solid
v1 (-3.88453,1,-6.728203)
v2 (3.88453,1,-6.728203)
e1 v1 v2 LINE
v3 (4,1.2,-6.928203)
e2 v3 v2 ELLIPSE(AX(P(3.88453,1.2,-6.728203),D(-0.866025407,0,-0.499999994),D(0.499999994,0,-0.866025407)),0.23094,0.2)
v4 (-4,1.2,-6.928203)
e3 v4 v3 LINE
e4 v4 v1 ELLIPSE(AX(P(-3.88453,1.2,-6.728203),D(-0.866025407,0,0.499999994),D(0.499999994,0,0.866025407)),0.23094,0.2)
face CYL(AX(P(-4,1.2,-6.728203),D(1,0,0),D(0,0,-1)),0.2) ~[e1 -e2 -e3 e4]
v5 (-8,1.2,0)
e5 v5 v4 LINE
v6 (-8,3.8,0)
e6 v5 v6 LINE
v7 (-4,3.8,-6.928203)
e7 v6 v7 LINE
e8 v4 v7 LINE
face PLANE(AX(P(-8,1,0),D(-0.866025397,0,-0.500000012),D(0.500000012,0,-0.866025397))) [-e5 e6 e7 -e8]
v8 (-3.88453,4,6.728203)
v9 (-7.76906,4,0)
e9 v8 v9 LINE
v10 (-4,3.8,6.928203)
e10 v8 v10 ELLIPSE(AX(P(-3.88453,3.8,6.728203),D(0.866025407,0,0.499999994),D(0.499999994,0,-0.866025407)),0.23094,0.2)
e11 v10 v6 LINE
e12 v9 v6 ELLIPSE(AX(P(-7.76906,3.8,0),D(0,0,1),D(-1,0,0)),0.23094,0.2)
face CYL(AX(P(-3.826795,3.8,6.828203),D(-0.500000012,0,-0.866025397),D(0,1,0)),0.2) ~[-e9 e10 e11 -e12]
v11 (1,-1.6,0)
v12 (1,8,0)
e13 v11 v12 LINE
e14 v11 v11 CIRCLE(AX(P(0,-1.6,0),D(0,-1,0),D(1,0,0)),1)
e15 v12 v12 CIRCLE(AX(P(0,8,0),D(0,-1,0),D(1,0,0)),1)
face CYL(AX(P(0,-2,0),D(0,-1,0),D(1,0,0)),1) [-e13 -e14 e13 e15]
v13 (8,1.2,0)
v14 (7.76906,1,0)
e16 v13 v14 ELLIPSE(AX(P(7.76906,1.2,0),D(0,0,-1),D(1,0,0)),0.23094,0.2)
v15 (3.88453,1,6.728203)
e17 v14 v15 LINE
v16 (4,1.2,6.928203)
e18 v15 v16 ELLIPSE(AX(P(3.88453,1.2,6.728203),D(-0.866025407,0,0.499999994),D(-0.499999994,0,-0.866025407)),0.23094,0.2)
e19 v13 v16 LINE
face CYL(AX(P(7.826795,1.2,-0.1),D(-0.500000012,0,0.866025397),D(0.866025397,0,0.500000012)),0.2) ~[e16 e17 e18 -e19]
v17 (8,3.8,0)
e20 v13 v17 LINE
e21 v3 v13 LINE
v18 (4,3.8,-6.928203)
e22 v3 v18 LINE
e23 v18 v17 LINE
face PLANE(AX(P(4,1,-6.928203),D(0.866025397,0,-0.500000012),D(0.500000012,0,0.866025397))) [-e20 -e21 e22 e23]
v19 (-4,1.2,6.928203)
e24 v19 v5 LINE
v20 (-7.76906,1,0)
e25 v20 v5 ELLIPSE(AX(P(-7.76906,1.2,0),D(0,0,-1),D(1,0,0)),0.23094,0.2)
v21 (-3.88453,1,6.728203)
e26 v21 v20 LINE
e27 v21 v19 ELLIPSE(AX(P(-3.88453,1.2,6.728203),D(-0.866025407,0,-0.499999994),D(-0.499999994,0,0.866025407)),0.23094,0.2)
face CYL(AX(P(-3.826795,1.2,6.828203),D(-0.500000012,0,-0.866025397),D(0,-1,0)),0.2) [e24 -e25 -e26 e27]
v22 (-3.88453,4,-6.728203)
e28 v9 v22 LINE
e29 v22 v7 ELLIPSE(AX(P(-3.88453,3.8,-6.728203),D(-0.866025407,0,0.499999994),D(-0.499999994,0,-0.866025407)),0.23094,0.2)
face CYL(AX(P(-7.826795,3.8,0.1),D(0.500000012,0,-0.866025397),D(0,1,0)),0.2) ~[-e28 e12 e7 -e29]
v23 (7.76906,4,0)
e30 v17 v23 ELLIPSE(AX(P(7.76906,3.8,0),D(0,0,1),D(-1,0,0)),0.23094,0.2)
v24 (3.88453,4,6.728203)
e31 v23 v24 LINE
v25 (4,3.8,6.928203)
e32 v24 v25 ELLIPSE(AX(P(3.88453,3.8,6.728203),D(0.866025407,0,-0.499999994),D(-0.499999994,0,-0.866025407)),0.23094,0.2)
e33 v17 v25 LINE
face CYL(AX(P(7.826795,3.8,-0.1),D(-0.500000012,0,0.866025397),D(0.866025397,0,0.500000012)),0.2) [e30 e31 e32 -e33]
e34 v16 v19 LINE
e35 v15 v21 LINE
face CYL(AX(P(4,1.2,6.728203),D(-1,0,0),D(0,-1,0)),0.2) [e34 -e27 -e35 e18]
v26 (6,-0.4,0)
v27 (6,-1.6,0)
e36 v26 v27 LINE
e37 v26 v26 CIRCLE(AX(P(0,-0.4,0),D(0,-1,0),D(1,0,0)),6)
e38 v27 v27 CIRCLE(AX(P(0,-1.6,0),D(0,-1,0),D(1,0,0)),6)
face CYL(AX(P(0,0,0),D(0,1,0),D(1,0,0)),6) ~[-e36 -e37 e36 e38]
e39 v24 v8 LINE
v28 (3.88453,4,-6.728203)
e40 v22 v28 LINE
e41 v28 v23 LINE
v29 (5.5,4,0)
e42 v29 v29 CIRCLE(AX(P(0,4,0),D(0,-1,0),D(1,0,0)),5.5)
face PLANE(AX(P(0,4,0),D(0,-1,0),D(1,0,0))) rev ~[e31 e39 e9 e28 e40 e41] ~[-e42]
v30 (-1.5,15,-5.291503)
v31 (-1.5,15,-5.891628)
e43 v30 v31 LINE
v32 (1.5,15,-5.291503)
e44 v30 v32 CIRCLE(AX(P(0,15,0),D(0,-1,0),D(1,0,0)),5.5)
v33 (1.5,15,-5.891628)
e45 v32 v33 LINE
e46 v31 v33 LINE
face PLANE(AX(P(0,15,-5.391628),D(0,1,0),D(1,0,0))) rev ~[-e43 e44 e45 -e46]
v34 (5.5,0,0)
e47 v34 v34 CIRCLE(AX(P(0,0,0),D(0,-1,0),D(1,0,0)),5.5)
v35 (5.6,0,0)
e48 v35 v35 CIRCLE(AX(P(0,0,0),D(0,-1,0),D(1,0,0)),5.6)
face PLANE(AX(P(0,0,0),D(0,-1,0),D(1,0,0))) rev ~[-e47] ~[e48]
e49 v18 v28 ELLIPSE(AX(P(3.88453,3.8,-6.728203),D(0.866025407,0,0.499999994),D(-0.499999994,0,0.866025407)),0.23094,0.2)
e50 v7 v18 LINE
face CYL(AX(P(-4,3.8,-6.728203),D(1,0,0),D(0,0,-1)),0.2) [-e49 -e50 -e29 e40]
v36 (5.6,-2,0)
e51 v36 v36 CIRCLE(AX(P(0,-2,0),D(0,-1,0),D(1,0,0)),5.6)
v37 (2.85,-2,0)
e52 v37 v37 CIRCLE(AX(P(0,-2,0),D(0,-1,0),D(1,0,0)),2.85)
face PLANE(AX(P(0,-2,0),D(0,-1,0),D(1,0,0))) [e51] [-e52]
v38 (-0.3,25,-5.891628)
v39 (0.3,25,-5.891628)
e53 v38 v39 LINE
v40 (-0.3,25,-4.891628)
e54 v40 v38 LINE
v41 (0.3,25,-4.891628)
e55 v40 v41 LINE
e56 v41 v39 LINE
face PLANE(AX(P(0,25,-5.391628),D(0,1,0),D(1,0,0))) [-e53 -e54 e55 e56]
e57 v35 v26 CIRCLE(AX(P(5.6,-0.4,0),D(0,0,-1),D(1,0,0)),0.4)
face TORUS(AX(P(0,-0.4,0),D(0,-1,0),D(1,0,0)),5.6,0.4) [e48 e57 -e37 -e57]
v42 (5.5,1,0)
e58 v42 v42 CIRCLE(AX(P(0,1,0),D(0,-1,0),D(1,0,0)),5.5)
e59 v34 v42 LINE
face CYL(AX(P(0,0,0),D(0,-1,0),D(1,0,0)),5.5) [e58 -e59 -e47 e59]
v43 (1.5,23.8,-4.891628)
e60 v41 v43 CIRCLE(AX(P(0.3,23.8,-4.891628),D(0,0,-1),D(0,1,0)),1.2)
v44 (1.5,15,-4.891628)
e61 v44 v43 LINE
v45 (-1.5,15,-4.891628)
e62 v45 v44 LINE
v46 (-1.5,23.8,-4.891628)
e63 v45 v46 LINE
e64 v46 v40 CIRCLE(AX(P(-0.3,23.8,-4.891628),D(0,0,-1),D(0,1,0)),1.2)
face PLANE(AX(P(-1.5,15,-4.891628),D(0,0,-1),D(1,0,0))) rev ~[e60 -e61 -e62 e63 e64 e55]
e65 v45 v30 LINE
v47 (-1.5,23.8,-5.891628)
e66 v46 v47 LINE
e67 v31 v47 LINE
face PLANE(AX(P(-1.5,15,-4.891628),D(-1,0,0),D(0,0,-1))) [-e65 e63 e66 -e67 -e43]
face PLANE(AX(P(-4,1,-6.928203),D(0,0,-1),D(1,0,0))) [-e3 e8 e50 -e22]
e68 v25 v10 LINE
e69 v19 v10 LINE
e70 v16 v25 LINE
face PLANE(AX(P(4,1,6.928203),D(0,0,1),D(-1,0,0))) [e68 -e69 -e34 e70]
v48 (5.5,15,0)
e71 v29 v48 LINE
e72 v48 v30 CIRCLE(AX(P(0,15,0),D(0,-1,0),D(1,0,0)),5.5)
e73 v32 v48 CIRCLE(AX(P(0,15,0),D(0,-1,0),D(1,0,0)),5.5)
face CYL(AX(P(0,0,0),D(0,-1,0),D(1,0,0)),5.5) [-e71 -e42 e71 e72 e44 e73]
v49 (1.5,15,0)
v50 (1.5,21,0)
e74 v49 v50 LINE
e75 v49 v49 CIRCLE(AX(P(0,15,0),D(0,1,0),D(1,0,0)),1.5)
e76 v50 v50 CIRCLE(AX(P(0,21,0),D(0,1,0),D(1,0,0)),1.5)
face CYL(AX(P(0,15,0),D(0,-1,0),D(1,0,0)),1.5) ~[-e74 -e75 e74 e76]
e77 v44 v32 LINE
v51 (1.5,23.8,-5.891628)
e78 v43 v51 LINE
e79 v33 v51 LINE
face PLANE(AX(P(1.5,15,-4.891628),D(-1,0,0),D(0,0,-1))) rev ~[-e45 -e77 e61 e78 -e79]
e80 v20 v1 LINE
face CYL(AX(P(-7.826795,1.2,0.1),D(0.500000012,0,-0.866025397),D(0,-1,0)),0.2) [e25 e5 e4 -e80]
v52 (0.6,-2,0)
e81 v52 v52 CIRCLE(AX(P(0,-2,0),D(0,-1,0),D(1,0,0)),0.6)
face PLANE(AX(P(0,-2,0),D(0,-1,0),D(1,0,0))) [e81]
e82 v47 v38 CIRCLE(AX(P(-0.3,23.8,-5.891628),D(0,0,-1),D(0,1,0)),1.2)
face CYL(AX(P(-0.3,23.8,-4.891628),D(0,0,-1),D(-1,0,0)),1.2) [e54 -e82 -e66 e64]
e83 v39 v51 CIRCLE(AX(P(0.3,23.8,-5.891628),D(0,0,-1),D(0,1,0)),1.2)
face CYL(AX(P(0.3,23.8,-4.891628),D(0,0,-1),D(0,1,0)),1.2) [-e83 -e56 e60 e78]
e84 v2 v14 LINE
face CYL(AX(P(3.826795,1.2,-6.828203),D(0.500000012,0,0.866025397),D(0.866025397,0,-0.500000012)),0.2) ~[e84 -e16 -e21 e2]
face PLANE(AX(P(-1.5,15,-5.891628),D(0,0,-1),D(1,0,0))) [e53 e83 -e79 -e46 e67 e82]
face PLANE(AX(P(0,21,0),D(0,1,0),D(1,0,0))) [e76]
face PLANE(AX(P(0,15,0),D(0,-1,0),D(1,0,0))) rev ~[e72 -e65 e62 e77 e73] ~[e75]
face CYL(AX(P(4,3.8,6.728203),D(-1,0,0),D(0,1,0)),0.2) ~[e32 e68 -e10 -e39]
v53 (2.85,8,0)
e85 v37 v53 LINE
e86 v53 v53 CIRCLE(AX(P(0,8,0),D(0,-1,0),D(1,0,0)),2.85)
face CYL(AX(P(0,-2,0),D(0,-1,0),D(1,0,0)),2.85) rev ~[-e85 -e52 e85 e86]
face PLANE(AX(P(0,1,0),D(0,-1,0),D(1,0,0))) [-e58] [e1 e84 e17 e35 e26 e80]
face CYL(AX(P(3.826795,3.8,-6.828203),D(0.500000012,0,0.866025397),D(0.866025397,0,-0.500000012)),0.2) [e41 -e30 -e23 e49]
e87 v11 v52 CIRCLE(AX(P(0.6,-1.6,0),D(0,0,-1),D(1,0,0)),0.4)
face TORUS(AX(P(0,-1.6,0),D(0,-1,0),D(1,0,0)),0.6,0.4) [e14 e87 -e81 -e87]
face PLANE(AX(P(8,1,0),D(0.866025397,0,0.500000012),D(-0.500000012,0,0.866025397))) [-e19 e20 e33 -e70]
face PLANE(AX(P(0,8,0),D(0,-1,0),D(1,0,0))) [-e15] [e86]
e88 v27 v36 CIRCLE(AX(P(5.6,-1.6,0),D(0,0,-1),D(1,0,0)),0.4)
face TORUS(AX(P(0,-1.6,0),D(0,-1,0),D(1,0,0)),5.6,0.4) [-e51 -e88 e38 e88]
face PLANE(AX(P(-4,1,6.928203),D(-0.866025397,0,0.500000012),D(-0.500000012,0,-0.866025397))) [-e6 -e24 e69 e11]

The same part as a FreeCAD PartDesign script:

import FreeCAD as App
import Part
import Sketcher

V = App.Vector
Q = App.Units.Quantity


def edges_at(feature, points):
    """Names of the edges that pass closest to the given points."""
    edges = feature.Shape.Edges
    near = lambda p: min(range(len(edges)), key=lambda i: edges[i].distToShape(Part.Vertex(*p))[0])
    return sorted({f"Edge{near(p) + 1}" for p in points})


def add_polygon(sketch, points):
    """Adds a closed chain of lines whose ends are joined by coincident constraints."""
    first, n = sketch.GeometryCount, len(points)
    for a, b in zip(points, points[1:] + points[:1]):
        sketch.addGeometry(Part.LineSegment(App.Vector(*a, 0), App.Vector(*b, 0)), False)
    for i in range(n):
        sketch.addConstraint(Sketcher.Constraint("Coincident", first + i, 2, first + (i + 1) % n, 1))

doc = App.newDocument("Part")
body = doc.addObject("PartDesign::Body", "Body")

# Sketch on XZ plane
sketch1 = body.newObject("Sketcher::SketchObject", "Sketch")
sketch1.AttachmentSupport = (doc.getObject("XZ_Plane"), [""])
sketch1.MapMode = "FlatFace"
sketch1.addGeometry(Part.Circle(V(0, 0, 0), V(0, 0, 1), 5.5), False)
sketch1.addConstraint(Sketcher.Constraint("Coincident", 0, 3, -1, 1))
sketch1.addConstraint(Sketcher.Constraint("Diameter", 0, 11.0))
pad1 = body.newObject("PartDesign::Pad", "Pad")
pad1.Profile = sketch1
pad1.Length = 15
pad1.Reversed = True

# Sketch on XZ plane
sketch2 = body.newObject("Sketcher::SketchObject", "Sketch001")
sketch2.AttachmentSupport = (doc.getObject("XZ_Plane"), [""])
sketch2.MapMode = "FlatFace"
sketch2.addGeometry(Part.Circle(V(0, 0, 0), V(0, 0, 1), 6), False)
sketch2.addConstraint(Sketcher.Constraint("Coincident", 0, 3, -1, 1))
sketch2.addConstraint(Sketcher.Constraint("Diameter", 0, 12.0))
pad2 = body.newObject("PartDesign::Pad", "Pad001")
pad2.Profile = sketch2
pad2.Length = 2

# Sketch on XZ plane
sketch3 = body.newObject("Sketcher::SketchObject", "Sketch002")
sketch3.AttachmentSupport = (doc.getObject("XZ_Plane"), [""])
sketch3.MapMode = "FlatFace"
sketch3.AttachmentOffset = App.Placement(V(0, 0, -15), App.Rotation())
sketch3.addGeometry(Part.Circle(V(0, 0, 0), V(0, 0, 1), 1.5), False)
sketch3.addConstraint(Sketcher.Constraint("Coincident", 0, 3, -1, 1))
sketch3.addConstraint(Sketcher.Constraint("Diameter", 0, 3.0))
pad3 = body.newObject("PartDesign::Pad", "Pad002")
pad3.Profile = sketch3
pad3.Length = 6
pad3.Reversed = True

# Sketch on XZ plane
sketch4 = body.newObject("Sketcher::SketchObject", "Sketch003")
sketch4.AttachmentSupport = (doc.getObject("XZ_Plane"), [""])
sketch4.MapMode = "FlatFace"
sketch4.AttachmentOffset = App.Placement(V(0, 0, -15), App.Rotation())
add_polygon(sketch4, [(-1.5, -5.891628), (-1.5, -4.891628), (1.5, -4.891628), (1.5, -5.891628)])  # lines 0-3
sketch4.addConstraint(Sketcher.Constraint("Vertical", 0))
sketch4.addConstraint(Sketcher.Constraint("Horizontal", 1))
sketch4.addConstraint(Sketcher.Constraint("Vertical", 2))
sketch4.addConstraint(Sketcher.Constraint("Horizontal", 3))
sketch4.addConstraint(Sketcher.Constraint("DistanceX", 1, 1, 1, 2, 3.0))
sketch4.addConstraint(Sketcher.Constraint("DistanceY", 0, 1, 0, 2, 1.0))
sketch4.addConstraint(Sketcher.Constraint("DistanceX", 0, 2, -1, 1, 1.5))
sketch4.addConstraint(Sketcher.Constraint("DistanceY", 0, 2, -1, 1, 4.891628))
pad4 = body.newObject("PartDesign::Pad", "Pad003")
pad4.Profile = sketch4
pad4.Length = 10
pad4.Reversed = True

# Sketch on XZ plane
sketch5 = body.newObject("Sketcher::SketchObject", "Sketch004")
sketch5.AttachmentSupport = (doc.getObject("XZ_Plane"), [""])
sketch5.MapMode = "FlatFace"
sketch5.AttachmentOffset = App.Placement(V(0, 0, 2), App.Rotation())
sketch5.addGeometry(Part.Circle(V(0, 0, 0), V(0, 0, 1), 2.85), False)
sketch5.addGeometry(Part.Circle(V(0, 0, 0), V(0, 0, 1), 1), False)
sketch5.addConstraint(Sketcher.Constraint("Coincident", 0, 3, -1, 1))
sketch5.addConstraint(Sketcher.Constraint("Coincident", 1, 3, -1, 1))
sketch5.addConstraint(Sketcher.Constraint("Diameter", 1, 2.0))
sketch5.addConstraint(Sketcher.Constraint("Diameter", 0, 5.7))
pocket1 = body.newObject("PartDesign::Pocket", "Pocket")
pocket1.Profile = sketch5
pocket1.Length = 10
doc.recompute()

fillet = body.newObject("PartDesign::Fillet", "Fillet")
fillet.Base = (pocket1, edges_at(pocket1, [(1.5, 25, -5.392), (-1.5, 25, -5.392)]))
fillet.Radius = 1.2
doc.recompute()

fillet2 = body.newObject("PartDesign::Fillet", "Fillet001")
fillet2.Base = (fillet, edges_at(fillet, [(-6, -2, 0), (-6, 0, 0), (-1, -2, 0)]))
fillet2.Radius = 0.4

# Sketch on XZ plane
sketch6 = body.newObject("Sketcher::SketchObject", "Sketch005")
sketch6.AttachmentSupport = (doc.getObject("XZ_Plane"), [""])
sketch6.MapMode = "FlatFace"
sketch6.AttachmentOffset = App.Placement(V(0, 0, -1), App.Rotation())
add_polygon(sketch6, [(4, -6.928203), (8, 0), (4, 6.928203), (-4, 6.928203), (-8, 0), (-4, -6.928203)])  # lines 0-5
sketch6.addGeometry(Part.Circle(V(0, 0, 0), V(0, 0, 1), 5), False)  # 6
sketch6.addConstraint(Sketcher.Constraint("Horizontal", 2))
sketch6.addConstraint(Sketcher.Constraint("Horizontal", 5))
sketch6.addConstraint(Sketcher.Constraint("Coincident", 6, 3, -1, 1))
sketch6.addConstraint(Sketcher.Constraint("Symmetric", 0, 2, 3, 2, -1, 1))
sketch6.addConstraint(Sketcher.Constraint("Symmetric", 1, 2, 4, 2, -1, 1))
sketch6.addConstraint(Sketcher.Constraint("PointOnObject", 0, 2, -1))
sketch6.addConstraint(Sketcher.Constraint("Parallel", 0, 3))
sketch6.addConstraint(Sketcher.Constraint("Vertical", 2, 2, 4, 2))
sketch6.addConstraint(Sketcher.Constraint("Diameter", 6, 10.0))
sketch6.addConstraint(Sketcher.Constraint("DistanceX", 2, 2, 2, 1, 8.0))
sketch6.addConstraint(Sketcher.Constraint("Angle", 0, Q("59.999999 deg")))
sketch6.addConstraint(Sketcher.Constraint("Distance", 0, 8.0))
pad5 = body.newObject("PartDesign::Pad", "Pad004")
pad5.Profile = sketch6
pad5.Length = 3
pad5.Reversed = True
doc.recompute()

fillet3 = body.newObject("PartDesign::Fillet", "Fillet002")
fillet3.Base = (pad5, edges_at(pad5, [
    (0, 1, -6.928),
    (6, 1, -3.464),
    (0, 1, 6.928),
    (6, 1, 3.464),
    (-6, 1, -3.464),
    (-6, 1, 3.464),
    (-6, 4, 3.464),
    (-6, 4, -3.464),
    (0, 4, 6.928),
    (6, 4, 3.464),
    (6, 4, -3.464),
    (0, 4, -6.928),
]))
fillet3.Radius = 0.2

doc.recompute()
